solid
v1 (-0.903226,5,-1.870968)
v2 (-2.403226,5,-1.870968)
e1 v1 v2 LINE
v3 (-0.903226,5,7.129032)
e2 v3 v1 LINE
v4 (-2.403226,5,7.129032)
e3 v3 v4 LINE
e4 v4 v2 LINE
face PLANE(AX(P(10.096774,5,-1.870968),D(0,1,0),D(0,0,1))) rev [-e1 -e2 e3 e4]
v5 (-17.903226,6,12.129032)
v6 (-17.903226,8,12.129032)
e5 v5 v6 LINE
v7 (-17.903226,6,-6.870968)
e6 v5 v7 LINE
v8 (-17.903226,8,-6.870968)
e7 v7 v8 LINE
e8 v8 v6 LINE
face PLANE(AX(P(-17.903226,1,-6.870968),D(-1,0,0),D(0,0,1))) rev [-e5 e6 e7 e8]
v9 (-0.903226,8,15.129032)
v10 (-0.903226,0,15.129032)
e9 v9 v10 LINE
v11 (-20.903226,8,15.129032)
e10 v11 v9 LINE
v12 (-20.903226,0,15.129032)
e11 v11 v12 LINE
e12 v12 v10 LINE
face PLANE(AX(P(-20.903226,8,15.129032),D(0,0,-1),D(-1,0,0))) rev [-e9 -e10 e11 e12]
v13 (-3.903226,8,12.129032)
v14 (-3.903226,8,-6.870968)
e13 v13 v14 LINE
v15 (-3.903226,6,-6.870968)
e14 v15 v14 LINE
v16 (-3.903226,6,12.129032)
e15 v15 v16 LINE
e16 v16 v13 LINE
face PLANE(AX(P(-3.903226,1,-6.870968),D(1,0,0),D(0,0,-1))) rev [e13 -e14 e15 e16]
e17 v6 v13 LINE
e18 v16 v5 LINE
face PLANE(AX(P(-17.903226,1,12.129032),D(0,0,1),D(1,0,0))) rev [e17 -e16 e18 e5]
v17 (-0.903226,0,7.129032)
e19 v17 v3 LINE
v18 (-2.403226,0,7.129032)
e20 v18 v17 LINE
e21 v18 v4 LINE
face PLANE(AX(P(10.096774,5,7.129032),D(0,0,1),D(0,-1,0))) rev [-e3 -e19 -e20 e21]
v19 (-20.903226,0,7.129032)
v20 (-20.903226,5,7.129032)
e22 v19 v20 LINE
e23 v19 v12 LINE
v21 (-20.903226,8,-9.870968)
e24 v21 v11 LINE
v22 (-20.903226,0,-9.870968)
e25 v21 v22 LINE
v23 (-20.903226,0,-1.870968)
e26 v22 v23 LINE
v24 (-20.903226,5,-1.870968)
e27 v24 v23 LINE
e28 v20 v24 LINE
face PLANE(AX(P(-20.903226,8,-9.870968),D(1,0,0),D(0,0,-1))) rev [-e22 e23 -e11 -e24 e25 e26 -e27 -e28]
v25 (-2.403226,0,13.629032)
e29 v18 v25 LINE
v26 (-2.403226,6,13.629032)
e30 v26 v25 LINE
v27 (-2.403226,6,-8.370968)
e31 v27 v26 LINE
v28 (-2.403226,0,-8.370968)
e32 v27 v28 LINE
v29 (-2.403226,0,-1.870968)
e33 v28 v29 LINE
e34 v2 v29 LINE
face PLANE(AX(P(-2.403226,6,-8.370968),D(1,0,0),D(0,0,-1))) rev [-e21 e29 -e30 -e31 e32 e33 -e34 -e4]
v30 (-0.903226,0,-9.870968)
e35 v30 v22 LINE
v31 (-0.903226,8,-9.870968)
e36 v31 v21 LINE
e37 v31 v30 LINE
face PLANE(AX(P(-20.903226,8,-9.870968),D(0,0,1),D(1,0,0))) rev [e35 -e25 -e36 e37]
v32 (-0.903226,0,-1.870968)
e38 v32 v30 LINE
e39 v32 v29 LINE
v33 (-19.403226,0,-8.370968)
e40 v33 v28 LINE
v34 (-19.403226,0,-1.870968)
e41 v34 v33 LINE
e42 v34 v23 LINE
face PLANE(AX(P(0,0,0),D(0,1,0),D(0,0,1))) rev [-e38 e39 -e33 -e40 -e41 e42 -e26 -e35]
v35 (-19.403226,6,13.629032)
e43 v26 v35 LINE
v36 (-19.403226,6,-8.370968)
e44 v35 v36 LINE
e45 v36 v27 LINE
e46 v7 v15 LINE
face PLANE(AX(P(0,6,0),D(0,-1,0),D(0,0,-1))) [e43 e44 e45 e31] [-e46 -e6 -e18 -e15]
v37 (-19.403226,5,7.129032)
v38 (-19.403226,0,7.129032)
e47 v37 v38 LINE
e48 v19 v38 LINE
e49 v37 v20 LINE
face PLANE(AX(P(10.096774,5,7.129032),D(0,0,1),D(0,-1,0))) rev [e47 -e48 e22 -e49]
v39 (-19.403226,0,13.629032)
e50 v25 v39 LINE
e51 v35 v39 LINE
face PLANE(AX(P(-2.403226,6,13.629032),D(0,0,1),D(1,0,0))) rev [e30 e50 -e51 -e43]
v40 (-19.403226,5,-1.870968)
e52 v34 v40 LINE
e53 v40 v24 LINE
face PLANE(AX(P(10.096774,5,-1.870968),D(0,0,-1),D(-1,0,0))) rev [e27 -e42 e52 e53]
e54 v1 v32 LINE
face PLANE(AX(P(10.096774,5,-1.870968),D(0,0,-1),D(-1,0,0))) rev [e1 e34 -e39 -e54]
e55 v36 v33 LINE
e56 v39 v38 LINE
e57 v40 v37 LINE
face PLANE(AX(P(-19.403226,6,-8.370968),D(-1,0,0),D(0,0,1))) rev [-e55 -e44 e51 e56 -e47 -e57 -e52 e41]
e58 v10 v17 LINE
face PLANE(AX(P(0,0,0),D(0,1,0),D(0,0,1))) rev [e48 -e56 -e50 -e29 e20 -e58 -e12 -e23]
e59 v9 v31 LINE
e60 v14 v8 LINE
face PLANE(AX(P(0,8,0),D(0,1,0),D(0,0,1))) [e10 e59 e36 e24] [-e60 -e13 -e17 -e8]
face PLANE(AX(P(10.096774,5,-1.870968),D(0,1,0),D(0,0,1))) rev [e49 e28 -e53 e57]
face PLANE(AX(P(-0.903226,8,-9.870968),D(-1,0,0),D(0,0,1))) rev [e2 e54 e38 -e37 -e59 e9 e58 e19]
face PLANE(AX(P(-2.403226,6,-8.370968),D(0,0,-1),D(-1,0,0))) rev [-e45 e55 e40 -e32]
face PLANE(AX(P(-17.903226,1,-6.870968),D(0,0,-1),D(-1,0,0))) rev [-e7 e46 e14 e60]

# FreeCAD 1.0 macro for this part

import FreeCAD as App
import Part
import Sketcher
Q = App.Units.Quantity

doc = App.newDocument("Part")
body = doc.addObject("PartDesign::Body", "Body")

# Sketch on XZ plane
sketch1 = body.newObject("Sketcher::SketchObject", "Sketch")
sketch1.AttachmentSupport = (doc.getObject("XZ_Plane"), [""])
sketch1.MapMode = "FlatFace"
sketch1.addGeometry([
    Part.LineSegment(App.Vector(-21, -10, 0), App.Vector(-21, 15, 0)),
    Part.LineSegment(App.Vector(-21, 15, 0), App.Vector(-1, 15, 0)),
    Part.LineSegment(App.Vector(-1, 15, 0), App.Vector(-1, -10, 0)),
    Part.LineSegment(App.Vector(-1, -10, 0), App.Vector(-21, -10, 0)),
], False)
sketch1.addConstraint([
    Sketcher.Constraint("Coincident", 0, 2, 1, 1),
    Sketcher.Constraint("Coincident", 1, 2, 2, 1),
    Sketcher.Constraint("Coincident", 2, 2, 3, 1),
    Sketcher.Constraint("Coincident", 3, 2, 0, 1),
    Sketcher.Constraint("Vertical", 0),
    Sketcher.Constraint("Horizontal", 1),
    Sketcher.Constraint("Vertical", 2),
    Sketcher.Constraint("Horizontal", 3),
    Sketcher.Constraint("DistanceX", 1, 1, 1, 2, Q("20 mm")),
    Sketcher.Constraint("DistanceY", 0, 1, 0, 2, Q("25 mm")),
    Sketcher.Constraint("DistanceX", 0, 2, -1, 1, Q("20.903226 mm")),
    Sketcher.Constraint("DistanceY", -1, 1, 0, 2, Q("15.129032 mm")),
])
pad1 = body.newObject("PartDesign::Pad", "Pad")
pad1.Profile = sketch1
pad1.Length = 8
pad1.Reversed = True

# Sketch on YZ plane
sketch2 = body.newObject("Sketcher::SketchObject", "Sketch001")
sketch2.AttachmentSupport = (doc.getObject("YZ_Plane"), [""])
sketch2.MapMode = "FlatFace"
sketch2.AttachmentOffset = App.Placement(App.Vector(0, 0, -20.903226), App.Rotation())
sketch2.addGeometry([
    Part.LineSegment(App.Vector(5, -2, 0), App.Vector(0, -2, 0)),
    Part.LineSegment(App.Vector(0, -2, 0), App.Vector(0, 7, 0)),
    Part.LineSegment(App.Vector(0, 7, 0), App.Vector(5, 7, 0)),
    Part.LineSegment(App.Vector(5, 7, 0), App.Vector(5, -2, 0)),
], False)
sketch2.addConstraint([
    Sketcher.Constraint("Coincident", 0, 2, 1, 1),
    Sketcher.Constraint("Coincident", 1, 2, 2, 1),
    Sketcher.Constraint("Coincident", 2, 2, 3, 1),
    Sketcher.Constraint("Coincident", 3, 2, 0, 1),
    Sketcher.Constraint("Horizontal", 0),
    Sketcher.Constraint("Vertical", 1),
    Sketcher.Constraint("Horizontal", 2),
    Sketcher.Constraint("Vertical", 3),
    Sketcher.Constraint("PointOnObject", 0, 2, -2),
    Sketcher.Constraint("DistanceX", 0, 2, 0, 1, Q("5 mm")),
    Sketcher.Constraint("DistanceY", 1, 1, 1, 2, Q("9 mm")),
    Sketcher.Constraint("DistanceY", 0, 2, -1, 1, Q("1.870968 mm")),
])
pocket1 = body.newObject("PartDesign::Pocket", "Pocket")
pocket1.Profile = sketch2
pocket1.Length = 31
pocket1.Reversed = True

# Sketch on XZ plane
sketch3 = body.newObject("Sketcher::SketchObject", "Sketch002")
sketch3.AttachmentSupport = (doc.getObject("XZ_Plane"), [""])
sketch3.MapMode = "FlatFace"
sketch3.addGeometry([
    Part.LineSegment(App.Vector(-19, 14, 0), App.Vector(-19, -8, 0)),
    Part.LineSegment(App.Vector(-19, -8, 0), App.Vector(-2, -8, 0)),
    Part.LineSegment(App.Vector(-2, -8, 0), App.Vector(-2, 14, 0)),
    Part.LineSegment(App.Vector(-2, 14, 0), App.Vector(-19, 14, 0)),
], False)
sketch3.addConstraint([
    Sketcher.Constraint("Coincident", 0, 2, 1, 1),
    Sketcher.Constraint("Coincident", 1, 2, 2, 1),
    Sketcher.Constraint("Coincident", 2, 2, 3, 1),
    Sketcher.Constraint("Coincident", 3, 2, 0, 1),
    Sketcher.Constraint("Vertical", 0),
    Sketcher.Constraint("Horizontal", 1),
    Sketcher.Constraint("Vertical", 2),
    Sketcher.Constraint("Horizontal", 3),
    Sketcher.Constraint("DistanceX", 1, 1, 1, 2, Q("17 mm")),
    Sketcher.Constraint("DistanceY", 0, 2, 0, 1, Q("22 mm")),
    Sketcher.Constraint("DistanceX", 0, 2, -1, 1, Q("19.403226 mm")),
    Sketcher.Constraint("DistanceY", 0, 2, -1, 1, Q("8.370968 mm")),
])
pocket2 = body.newObject("PartDesign::Pocket", "Pocket001")
pocket2.Profile = sketch3
pocket2.Length = 6

# Sketch on XZ plane
sketch4 = body.newObject("Sketcher::SketchObject", "Sketch003")
sketch4.AttachmentSupport = (doc.getObject("XZ_Plane"), [""])
sketch4.MapMode = "FlatFace"
sketch4.AttachmentOffset = App.Placement(App.Vector(0, 0, -8), App.Rotation())
sketch4.addGeometry([
    Part.LineSegment(App.Vector(-18, -7, 0), App.Vector(-18, 12, 0)),
    Part.LineSegment(App.Vector(-18, 12, 0), App.Vector(-4, 12, 0)),
    Part.LineSegment(App.Vector(-4, 12, 0), App.Vector(-4, -7, 0)),
    Part.LineSegment(App.Vector(-4, -7, 0), App.Vector(-18, -7, 0)),
], False)
sketch4.addConstraint([
    Sketcher.Constraint("Coincident", 0, 2, 1, 1),
    Sketcher.Constraint("Coincident", 1, 2, 2, 1),
    Sketcher.Constraint("Coincident", 2, 2, 3, 1),
    Sketcher.Constraint("Coincident", 3, 2, 0, 1),
    Sketcher.Constraint("Vertical", 0),
    Sketcher.Constraint("Horizontal", 1),
    Sketcher.Constraint("Vertical", 2),
    Sketcher.Constraint("Horizontal", 3),
    Sketcher.Constraint("DistanceX", 1, 1, 1, 2, Q("14 mm")),
    Sketcher.Constraint("DistanceY", 0, 1, 0, 2, Q("19 mm")),
    Sketcher.Constraint("DistanceX", 0, 2, -1, 1, Q("17.903226 mm")),
    Sketcher.Constraint("DistanceY", -1, 1, 0, 2, Q("12.129032 mm")),
])
pocket3 = body.newObject("PartDesign::Pocket", "Pocket002")
pocket3.Profile = sketch4
pocket3.Length = 7
pocket3.Reversed = True

doc.recompute()
